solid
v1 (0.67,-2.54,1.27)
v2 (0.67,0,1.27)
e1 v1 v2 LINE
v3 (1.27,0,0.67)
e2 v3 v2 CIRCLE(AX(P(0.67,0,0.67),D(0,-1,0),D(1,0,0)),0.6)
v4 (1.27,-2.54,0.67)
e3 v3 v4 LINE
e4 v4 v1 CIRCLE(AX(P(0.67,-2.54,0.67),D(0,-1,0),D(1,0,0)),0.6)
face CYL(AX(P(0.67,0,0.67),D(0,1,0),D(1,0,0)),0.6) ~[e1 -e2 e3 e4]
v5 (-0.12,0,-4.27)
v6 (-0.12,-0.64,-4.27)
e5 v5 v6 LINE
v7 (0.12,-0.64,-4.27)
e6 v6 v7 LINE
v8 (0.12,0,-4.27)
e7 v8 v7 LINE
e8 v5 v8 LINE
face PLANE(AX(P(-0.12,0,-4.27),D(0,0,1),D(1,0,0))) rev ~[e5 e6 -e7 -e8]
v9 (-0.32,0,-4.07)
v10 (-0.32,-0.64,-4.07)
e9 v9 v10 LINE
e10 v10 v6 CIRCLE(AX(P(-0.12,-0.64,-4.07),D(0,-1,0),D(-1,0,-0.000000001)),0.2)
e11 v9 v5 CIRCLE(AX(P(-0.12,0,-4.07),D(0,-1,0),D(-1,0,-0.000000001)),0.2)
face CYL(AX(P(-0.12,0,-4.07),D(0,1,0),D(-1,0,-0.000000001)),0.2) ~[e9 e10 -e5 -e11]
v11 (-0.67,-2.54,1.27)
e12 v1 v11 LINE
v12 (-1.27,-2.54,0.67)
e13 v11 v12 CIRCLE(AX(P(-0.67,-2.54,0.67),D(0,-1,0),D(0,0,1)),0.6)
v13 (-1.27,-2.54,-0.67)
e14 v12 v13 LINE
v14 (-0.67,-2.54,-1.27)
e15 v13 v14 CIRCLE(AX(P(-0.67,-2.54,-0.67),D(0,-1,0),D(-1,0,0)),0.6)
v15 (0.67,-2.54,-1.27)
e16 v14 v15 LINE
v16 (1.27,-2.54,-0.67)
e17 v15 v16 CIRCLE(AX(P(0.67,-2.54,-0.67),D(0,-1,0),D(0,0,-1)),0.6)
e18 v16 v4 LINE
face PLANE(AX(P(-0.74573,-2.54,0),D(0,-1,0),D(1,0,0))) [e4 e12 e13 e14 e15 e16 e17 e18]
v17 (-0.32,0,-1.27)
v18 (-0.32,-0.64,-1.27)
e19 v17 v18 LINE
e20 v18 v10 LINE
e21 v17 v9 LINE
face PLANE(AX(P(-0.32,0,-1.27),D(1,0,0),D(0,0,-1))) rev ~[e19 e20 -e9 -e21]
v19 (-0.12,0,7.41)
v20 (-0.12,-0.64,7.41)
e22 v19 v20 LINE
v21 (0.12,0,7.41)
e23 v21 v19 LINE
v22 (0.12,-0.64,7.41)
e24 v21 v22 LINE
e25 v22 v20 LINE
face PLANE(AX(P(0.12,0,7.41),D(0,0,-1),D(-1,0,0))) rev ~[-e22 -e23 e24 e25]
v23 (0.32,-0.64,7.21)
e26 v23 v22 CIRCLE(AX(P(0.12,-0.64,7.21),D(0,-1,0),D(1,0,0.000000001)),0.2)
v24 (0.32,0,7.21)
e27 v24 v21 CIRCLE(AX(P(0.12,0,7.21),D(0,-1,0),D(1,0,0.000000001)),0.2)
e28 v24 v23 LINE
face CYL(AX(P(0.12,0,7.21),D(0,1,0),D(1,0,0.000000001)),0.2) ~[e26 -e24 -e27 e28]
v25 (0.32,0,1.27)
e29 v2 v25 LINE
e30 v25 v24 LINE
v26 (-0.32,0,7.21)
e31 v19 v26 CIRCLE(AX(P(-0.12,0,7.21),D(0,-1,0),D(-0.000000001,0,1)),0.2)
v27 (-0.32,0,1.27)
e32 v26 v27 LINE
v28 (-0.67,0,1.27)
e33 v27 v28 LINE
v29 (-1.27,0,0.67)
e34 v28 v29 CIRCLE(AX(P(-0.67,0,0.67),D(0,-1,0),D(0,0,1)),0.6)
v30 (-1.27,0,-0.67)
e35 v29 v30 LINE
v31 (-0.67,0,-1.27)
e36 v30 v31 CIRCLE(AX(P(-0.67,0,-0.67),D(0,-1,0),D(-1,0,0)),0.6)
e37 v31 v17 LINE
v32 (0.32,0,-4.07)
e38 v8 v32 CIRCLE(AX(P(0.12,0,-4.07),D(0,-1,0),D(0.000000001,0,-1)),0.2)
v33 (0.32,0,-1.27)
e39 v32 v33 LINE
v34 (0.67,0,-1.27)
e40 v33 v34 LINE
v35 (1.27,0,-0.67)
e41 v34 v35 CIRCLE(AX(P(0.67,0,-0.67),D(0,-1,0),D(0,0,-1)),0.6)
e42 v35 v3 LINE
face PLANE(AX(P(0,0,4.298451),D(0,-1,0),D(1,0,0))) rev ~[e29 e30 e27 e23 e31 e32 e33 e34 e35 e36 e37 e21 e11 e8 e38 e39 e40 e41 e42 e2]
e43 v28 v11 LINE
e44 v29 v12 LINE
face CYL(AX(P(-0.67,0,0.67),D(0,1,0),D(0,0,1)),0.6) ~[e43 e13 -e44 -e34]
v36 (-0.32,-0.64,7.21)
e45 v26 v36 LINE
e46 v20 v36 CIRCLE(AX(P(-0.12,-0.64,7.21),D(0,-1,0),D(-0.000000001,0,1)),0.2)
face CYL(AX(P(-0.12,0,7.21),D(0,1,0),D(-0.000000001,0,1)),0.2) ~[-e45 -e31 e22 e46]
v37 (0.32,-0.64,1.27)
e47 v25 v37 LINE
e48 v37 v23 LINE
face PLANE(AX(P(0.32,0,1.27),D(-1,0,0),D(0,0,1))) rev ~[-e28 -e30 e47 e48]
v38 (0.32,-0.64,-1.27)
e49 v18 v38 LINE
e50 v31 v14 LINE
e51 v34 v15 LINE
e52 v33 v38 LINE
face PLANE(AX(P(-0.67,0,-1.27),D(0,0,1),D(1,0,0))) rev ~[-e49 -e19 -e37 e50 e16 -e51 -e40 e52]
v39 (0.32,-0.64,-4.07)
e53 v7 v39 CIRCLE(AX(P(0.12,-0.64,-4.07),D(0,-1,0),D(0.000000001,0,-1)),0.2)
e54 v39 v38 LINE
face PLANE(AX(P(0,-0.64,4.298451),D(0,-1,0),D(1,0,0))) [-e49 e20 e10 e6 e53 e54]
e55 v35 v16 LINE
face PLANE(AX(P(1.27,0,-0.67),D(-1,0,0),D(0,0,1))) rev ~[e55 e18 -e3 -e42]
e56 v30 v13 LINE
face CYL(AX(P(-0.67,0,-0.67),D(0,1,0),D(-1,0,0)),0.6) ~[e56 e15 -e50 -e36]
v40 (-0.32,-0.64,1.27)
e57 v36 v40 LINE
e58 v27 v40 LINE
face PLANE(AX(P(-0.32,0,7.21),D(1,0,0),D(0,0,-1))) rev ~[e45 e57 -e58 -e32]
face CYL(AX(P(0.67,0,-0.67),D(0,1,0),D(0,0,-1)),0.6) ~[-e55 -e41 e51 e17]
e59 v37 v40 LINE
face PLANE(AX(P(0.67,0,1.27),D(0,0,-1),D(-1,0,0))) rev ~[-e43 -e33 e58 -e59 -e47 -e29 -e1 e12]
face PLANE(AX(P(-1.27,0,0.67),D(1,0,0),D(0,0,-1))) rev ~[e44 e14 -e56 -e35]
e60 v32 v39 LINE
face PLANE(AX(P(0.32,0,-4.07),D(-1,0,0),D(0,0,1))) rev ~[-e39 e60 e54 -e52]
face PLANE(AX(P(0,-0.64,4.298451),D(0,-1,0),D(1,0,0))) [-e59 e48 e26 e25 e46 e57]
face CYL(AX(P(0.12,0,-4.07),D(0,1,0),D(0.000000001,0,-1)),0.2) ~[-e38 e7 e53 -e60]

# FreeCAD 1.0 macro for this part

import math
import FreeCAD as App
import Part
import Sketcher
from FreeCAD import Vector
Q = App.Units.Quantity

doc = App.newDocument("Part")
body = doc.addObject("PartDesign::Body", "Body")

# Sketch on XZ plane
sketch1 = body.newObject("Sketcher::SketchObject", "Sketch")
sketch1.AttachmentSupport = (doc.getObject("XZ_Plane"), [""])
sketch1.MapMode = "FlatFace"
sketch1.addGeometry([
    Part.ArcOfCircle(Part.Circle(Vector(-0.67, 0.67, 0), Vector(0, 0, 1), 0.6), math.radians(90), math.radians(180)),  # 0
    Part.LineSegment(Vector(-1.27, 0.67, 0), Vector(-1.27, -0.67, 0)),  # 1
    Part.ArcOfCircle(Part.Circle(Vector(-0.67, -0.67, 0), Vector(0, 0, 1), 0.6), math.radians(180), math.radians(270)),  # 2
    Part.LineSegment(Vector(-0.67, -1.27, 0), Vector(0.67, -1.27, 0)),  # 3
    Part.ArcOfCircle(Part.Circle(Vector(0.67, -0.67, 0), Vector(0, 0, 1), 0.6), math.radians(-90), math.radians(0)),  # 4
    Part.LineSegment(Vector(1.27, -0.67, 0), Vector(1.27, 0.67, 0)),  # 5
    Part.ArcOfCircle(Part.Circle(Vector(0.67, 0.67, 0), Vector(0, 0, 1), 0.6), math.radians(0), math.radians(90)),  # 6
    Part.LineSegment(Vector(0.67, 1.27, 0), Vector(-0.67, 1.27, 0)),  # 7
], False)
sketch1.addConstraint([
    Sketcher.Constraint("Tangent", 0, 2, 1, 1),
    Sketcher.Constraint("Tangent", 1, 2, 2, 1),
    Sketcher.Constraint("Tangent", 2, 2, 3, 1),
    Sketcher.Constraint("Tangent", 3, 2, 4, 1),
    Sketcher.Constraint("Tangent", 4, 2, 5, 1),
    Sketcher.Constraint("Tangent", 5, 2, 6, 1),
    Sketcher.Constraint("Tangent", 6, 2, 7, 1),
    Sketcher.Constraint("Tangent", 7, 2, 0, 1),
    Sketcher.Constraint("Vertical", 1),
    Sketcher.Constraint("Horizontal", 3),
    Sketcher.Constraint("Vertical", 5),
    Sketcher.Constraint("Horizontal", 7),
    Sketcher.Constraint("Equal", 0, 2),
    Sketcher.Constraint("Equal", 2, 4),
    Sketcher.Constraint("Equal", 4, 6),
    Sketcher.Constraint("Symmetric", 0, 3, 4, 3, -1, 1),
    Sketcher.Constraint("Equal", 7, 1),
    Sketcher.Constraint("Radius", 0, Q("0.6 mm")),
    Sketcher.Constraint("DistanceX", 3, 1, 3, 2, Q("1.34 mm")),
])
pad1 = body.newObject("PartDesign::Pad", "Pad")
pad1.Profile = sketch1
pad1.Length = 2.54

# Sketch on XZ plane
sketch2 = body.newObject("Sketcher::SketchObject", "Sketch001")
sketch2.AttachmentSupport = (doc.getObject("XZ_Plane"), [""])
sketch2.MapMode = "FlatFace"
sketch2.addGeometry([
    Part.LineSegment(Vector(0.12, 7.41, 0), Vector(-0.12, 7.41, 0)),  # 0
    Part.ArcOfCircle(Part.Circle(Vector(-0.12, 7.21, 0), Vector(0, 0, 1), 0.2), math.radians(90), math.radians(180)),  # 1
    Part.LineSegment(Vector(-0.32, 7.21, 0), Vector(-0.32, 1.27, 0)),  # 2
    Part.LineSegment(Vector(-0.32, 1.27, 0), Vector(-0.67, 1.27, 0)),  # 3
    Part.ArcOfCircle(Part.Circle(Vector(-0.67, 0.67, 0), Vector(0, 0, 1), 0.6), math.radians(90), math.radians(180)),  # 4
    Part.LineSegment(Vector(-1.27, 0.67, 0), Vector(-1.27, -0.67, 0)),  # 5
    Part.ArcOfCircle(Part.Circle(Vector(-0.67, -0.67, 0), Vector(0, 0, 1), 0.6), math.radians(180), math.radians(270)),  # 6
    Part.LineSegment(Vector(-0.67, -1.27, 0), Vector(-0.32, -1.27, 0)),  # 7
    Part.LineSegment(Vector(-0.32, -1.27, 0), Vector(-0.32, -4.07, 0)),  # 8
    Part.ArcOfCircle(Part.Circle(Vector(-0.12, -4.07, 0), Vector(0, 0, 1), 0.2), math.radians(180), math.radians(270)),  # 9
    Part.LineSegment(Vector(-0.12, -4.27, 0), Vector(0.12, -4.27, 0)),  # 10
    Part.ArcOfCircle(Part.Circle(Vector(0.12, -4.07, 0), Vector(0, 0, 1), 0.2), math.radians(-90), math.radians(0)),  # 11
    Part.LineSegment(Vector(0.32, -4.07, 0), Vector(0.32, -1.27, 0)),  # 12
    Part.LineSegment(Vector(0.32, -1.27, 0), Vector(0.67, -1.27, 0)),  # 13
    Part.ArcOfCircle(Part.Circle(Vector(0.67, -0.67, 0), Vector(0, 0, 1), 0.6), math.radians(-90), math.radians(0)),  # 14
    Part.LineSegment(Vector(1.27, -0.67, 0), Vector(1.27, 0.67, 0)),  # 15
    Part.ArcOfCircle(Part.Circle(Vector(0.67, 0.67, 0), Vector(0, 0, 1), 0.6), math.radians(0), math.radians(90)),  # 16
    Part.LineSegment(Vector(0.67, 1.27, 0), Vector(0.32, 1.27, 0)),  # 17
    Part.LineSegment(Vector(0.32, 1.27, 0), Vector(0.32, 7.21, 0)),  # 18
    Part.ArcOfCircle(Part.Circle(Vector(0.12, 7.21, 0), Vector(0, 0, 1), 0.2), math.radians(0), math.radians(90)),  # 19
], False)
sketch2.addConstraint([
    Sketcher.Constraint("Tangent", 0, 2, 1, 1),
    Sketcher.Constraint("Tangent", 1, 2, 2, 1),
    Sketcher.Constraint("Coincident", 2, 2, 3, 1),
    Sketcher.Constraint("Tangent", 3, 2, 4, 1),
    Sketcher.Constraint("Tangent", 4, 2, 5, 1),
    Sketcher.Constraint("Tangent", 5, 2, 6, 1),
    Sketcher.Constraint("Tangent", 6, 2, 7, 1),
    Sketcher.Constraint("Coincident", 7, 2, 8, 1),
    Sketcher.Constraint("Tangent", 8, 2, 9, 1),
    Sketcher.Constraint("Tangent", 9, 2, 10, 1),
    Sketcher.Constraint("Tangent", 10, 2, 11, 1),
    Sketcher.Constraint("Tangent", 11, 2, 12, 1),
    Sketcher.Constraint("Coincident", 12, 2, 13, 1),
    Sketcher.Constraint("Tangent", 13, 2, 14, 1),
    Sketcher.Constraint("Tangent", 14, 2, 15, 1),
    Sketcher.Constraint("Tangent", 15, 2, 16, 1),
    Sketcher.Constraint("Tangent", 16, 2, 17, 1),
    Sketcher.Constraint("Coincident", 17, 2, 18, 1),
    Sketcher.Constraint("Tangent", 18, 2, 19, 1),
    Sketcher.Constraint("Tangent", 19, 2, 0, 1),
    Sketcher.Constraint("Horizontal", 0),
    Sketcher.Constraint("Vertical", 2),
    Sketcher.Constraint("Horizontal", 3),
    Sketcher.Constraint("Vertical", 5),
    Sketcher.Constraint("Horizontal", 7),
    Sketcher.Constraint("Vertical", 8),
    Sketcher.Constraint("Horizontal", 10),
    Sketcher.Constraint("Vertical", 12),
    Sketcher.Constraint("Horizontal", 13),
    Sketcher.Constraint("Vertical", 15),
    Sketcher.Constraint("Horizontal", 17),
    Sketcher.Constraint("Vertical", 18),
    Sketcher.Constraint("Equal", 4, 6),
    Sketcher.Constraint("Equal", 1, 9),
    Sketcher.Constraint("Equal", 9, 11),
    Sketcher.Constraint("Equal", 6, 14),
    Sketcher.Constraint("Equal", 14, 16),
    Sketcher.Constraint("Equal", 11, 19),
    Sketcher.Constraint("Symmetric", 4, 3, 14, 3, -1, 1),
    Sketcher.Constraint("Symmetric", 7, 2, 17, 2, -1, 1),
    Sketcher.Constraint("Symmetric", 7, 2, 12, 2, -2),
    Sketcher.Constraint("Vertical", 1, 3, 9, 3),
    Sketcher.Constraint("Radius", 1, Q("0.2 mm")),
    Sketcher.Constraint("Radius", 4, Q("0.6 mm")),
    Sketcher.Constraint("DistanceY", 8, 2, 8, 1, Q("2.8 mm")),
    Sketcher.Constraint("DistanceX", 0, 2, 0, 1, Q("0.24 mm")),
    Sketcher.Constraint("DistanceX", 3, 2, 3, 1, Q("0.35 mm")),
    Sketcher.Constraint("DistanceY", 2, 2, 2, 1, Q("5.94 mm")),
    Sketcher.Constraint("DistanceY", 5, 2, 5, 1, Q("1.34 mm")),
])
pad2 = body.newObject("PartDesign::Pad", "Pad001")
pad2.Profile = sketch2
pad2.Length = 0.64

doc.recompute()
